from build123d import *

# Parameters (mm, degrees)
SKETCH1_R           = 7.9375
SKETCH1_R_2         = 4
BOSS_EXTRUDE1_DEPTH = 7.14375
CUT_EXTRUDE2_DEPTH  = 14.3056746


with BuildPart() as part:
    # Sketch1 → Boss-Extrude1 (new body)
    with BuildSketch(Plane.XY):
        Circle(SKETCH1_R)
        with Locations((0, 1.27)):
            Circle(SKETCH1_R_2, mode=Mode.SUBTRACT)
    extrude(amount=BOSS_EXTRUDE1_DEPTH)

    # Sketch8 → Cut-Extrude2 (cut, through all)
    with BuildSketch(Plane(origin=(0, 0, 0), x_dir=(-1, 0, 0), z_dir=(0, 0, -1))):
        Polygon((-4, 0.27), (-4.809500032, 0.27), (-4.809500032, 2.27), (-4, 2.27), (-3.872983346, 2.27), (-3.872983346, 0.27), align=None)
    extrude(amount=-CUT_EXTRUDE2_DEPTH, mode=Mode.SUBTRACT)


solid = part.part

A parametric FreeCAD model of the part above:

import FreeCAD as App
import Part
import Sketcher

V = App.Vector
Q = App.Units.Quantity

doc = App.newDocument("Part")
body = doc.addObject("PartDesign::Body", "Body")

# Sketch on XY plane
sketch1 = body.newObject("Sketcher::SketchObject", "Sketch")
sketch1.AttachmentSupport = (doc.getObject("XY_Plane"), [""])
sketch1.MapMode = "FlatFace"
sketch1.addGeometry([
    Part.Circle(V(0, 0, 0), V(0, 0, 1), 7.9),
    Part.Circle(V(0, 1.3, 0), V(0, 0, 1), 4),
], False)
sketch1.addConstraint([
    Sketcher.Constraint("Coincident", 0, 3, -1, 1),
    Sketcher.Constraint("PointOnObject", 1, 3, -2),
    Sketcher.Constraint("Diameter", 1, Q("8 mm")),
    Sketcher.Constraint("Diameter", 0, Q("15.875 mm")),
    Sketcher.Constraint("DistanceY", -1, 1, 1, 3, Q("1.27 mm")),
])
pad1 = body.newObject("PartDesign::Pad", "Pad")
pad1.Profile = sketch1
pad1.Length = 7.14375

# Sketch on XY plane
sketch2 = body.newObject("Sketcher::SketchObject", "Sketch001")
sketch2.AttachmentSupport = (doc.getObject("XY_Plane"), [""])
sketch2.MapMode = "FlatFace"
sketch2.addGeometry([
    Part.LineSegment(V(4.8, 0.3, 0), V(3.9, 0.3, 0)),
    Part.LineSegment(V(3.9, 0.3, 0), V(3.9, 2.3, 0)),
    Part.LineSegment(V(3.9, 2.3, 0), V(4.8, 2.3, 0)),
    Part.LineSegment(V(4.8, 2.3, 0), V(4.8, 0.3, 0)),
], False)
sketch2.addConstraint([
    Sketcher.Constraint("Coincident", 0, 2, 1, 1),
    Sketcher.Constraint("Coincident", 1, 2, 2, 1),
    Sketcher.Constraint("Coincident", 2, 2, 3, 1),
    Sketcher.Constraint("Coincident", 3, 2, 0, 1),
    Sketcher.Constraint("Horizontal", 0),
    Sketcher.Constraint("Vertical", 1),
    Sketcher.Constraint("Horizontal", 2),
    Sketcher.Constraint("Vertical", 3),
    Sketcher.Constraint("DistanceY", 1, 1, 1, 2, Q("2 mm")),
    Sketcher.Constraint("DistanceY", -1, 1, 0, 2, Q("0.27 mm")),
    Sketcher.Constraint("DistanceX", -1, 1, 2, 2, Q("4.8095 mm")),
    Sketcher.Constraint("DistanceX", 0, 2, 0, 1, Q("0.936517 mm")),
])
pocket1 = body.newObject("PartDesign::Pocket", "Pocket")
pocket1.Profile = sketch2
pocket1.Type = "ThroughAll"
pocket1.Reversed = True

doc.recompute()
